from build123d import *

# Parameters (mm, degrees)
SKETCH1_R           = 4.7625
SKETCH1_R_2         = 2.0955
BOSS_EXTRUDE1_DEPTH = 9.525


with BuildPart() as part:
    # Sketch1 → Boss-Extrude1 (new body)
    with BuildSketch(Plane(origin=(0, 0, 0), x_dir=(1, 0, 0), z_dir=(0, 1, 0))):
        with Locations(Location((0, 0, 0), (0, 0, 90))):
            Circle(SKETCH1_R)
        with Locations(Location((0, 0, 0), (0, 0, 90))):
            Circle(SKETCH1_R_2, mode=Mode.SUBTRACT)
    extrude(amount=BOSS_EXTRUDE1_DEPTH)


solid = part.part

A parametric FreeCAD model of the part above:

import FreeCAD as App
import Part
import Sketcher
Q = App.Units.Quantity

doc = App.newDocument("Part")
body = doc.addObject("PartDesign::Body", "Body")

sketch1 = doc.addObject("Sketcher::SketchObject", "Sketch")
body.addObject(sketch1)
sketch1.AttachmentSupport = (doc.XZ_Plane, [""])
sketch1.MapMode = "FlatFace"
sketch1.addGeometry(Part.Circle(App.Vector(0, 0, 0), App.Vector(0, 0, 1), 4.8), False)
sketch1.addGeometry(Part.Circle(App.Vector(0, 0, 0), App.Vector(0, 0, 1), 2.1), False)
sketch1.addConstraint(Sketcher.Constraint("Coincident", 0, 3, -1, 1))
sketch1.addConstraint(Sketcher.Constraint("Coincident", 1, 3, -1, 1))
sketch1.addConstraint(Sketcher.Constraint("Diameter", 0, Q("0.375 in")))
sketch1.addConstraint(Sketcher.Constraint("Diameter", 1, Q("0.165 in")))
pad1 = doc.addObject("PartDesign::Pad", "Pad")
body.addObject(pad1)
pad1.Profile = sketch1
pad1.Length = Q("0.375 in")
pad1.Reversed = True

doc.recompute()
